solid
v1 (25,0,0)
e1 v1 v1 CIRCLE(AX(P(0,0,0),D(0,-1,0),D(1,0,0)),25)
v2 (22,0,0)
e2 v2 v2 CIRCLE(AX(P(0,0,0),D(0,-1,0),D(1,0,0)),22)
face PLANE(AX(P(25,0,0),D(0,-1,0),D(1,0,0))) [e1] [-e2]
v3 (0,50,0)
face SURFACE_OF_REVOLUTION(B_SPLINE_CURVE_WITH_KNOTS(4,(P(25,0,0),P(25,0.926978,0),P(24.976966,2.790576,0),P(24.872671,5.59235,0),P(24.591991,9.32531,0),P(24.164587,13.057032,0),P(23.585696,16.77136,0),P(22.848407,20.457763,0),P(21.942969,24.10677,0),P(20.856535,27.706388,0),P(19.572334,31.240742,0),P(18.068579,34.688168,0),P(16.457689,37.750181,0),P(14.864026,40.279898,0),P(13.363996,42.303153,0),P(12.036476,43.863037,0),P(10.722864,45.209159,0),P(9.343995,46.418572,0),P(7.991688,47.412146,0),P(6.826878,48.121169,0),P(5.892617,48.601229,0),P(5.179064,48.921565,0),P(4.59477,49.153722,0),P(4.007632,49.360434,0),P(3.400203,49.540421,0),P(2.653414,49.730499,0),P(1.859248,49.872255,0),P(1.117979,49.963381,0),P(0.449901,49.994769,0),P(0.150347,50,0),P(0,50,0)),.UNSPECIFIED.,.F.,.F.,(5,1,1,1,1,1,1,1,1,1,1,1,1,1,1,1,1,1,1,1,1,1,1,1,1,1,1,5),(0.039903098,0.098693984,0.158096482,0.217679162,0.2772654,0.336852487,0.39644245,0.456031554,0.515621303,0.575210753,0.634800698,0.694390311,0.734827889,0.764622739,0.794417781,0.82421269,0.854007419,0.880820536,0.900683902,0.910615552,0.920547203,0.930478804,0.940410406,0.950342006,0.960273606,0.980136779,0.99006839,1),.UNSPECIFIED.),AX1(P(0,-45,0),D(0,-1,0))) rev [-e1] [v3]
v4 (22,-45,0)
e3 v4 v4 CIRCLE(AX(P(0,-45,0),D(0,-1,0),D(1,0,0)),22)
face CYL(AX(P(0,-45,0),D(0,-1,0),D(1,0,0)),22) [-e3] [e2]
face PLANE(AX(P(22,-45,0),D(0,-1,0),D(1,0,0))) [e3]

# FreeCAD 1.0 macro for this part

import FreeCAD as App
import Part
import Sketcher
from FreeCAD import Vector
Q = App.Units.Quantity

doc = App.newDocument("Part")
body = doc.addObject("PartDesign::Body", "Body")

# Sketch on XY plane
sketch1 = body.newObject("Sketcher::SketchObject", "Sketch")
sketch1.AttachmentSupport = (doc.getObject("XY_Plane"), [""])
sketch1.MapMode = "FlatFace"
sketch1.addGeometry([
    Part.LineSegment(Vector(22, 0, 0), Vector(25, 0, 0)),  # 0
    Part.BSplineCurve([Vector(0, 50, 0), Vector(0.150347, 50, 0), Vector(0.449901, 49.994769, 0), Vector(1.117979, 49.963381, 0), Vector(1.859248, 49.872255, 0), Vector(2.653414, 49.730499, 0), Vector(3.400203, 49.540421, 0), Vector(4.007632, 49.360434, 0), Vector(4.59477, 49.153722, 0), Vector(5.179064, 48.921565, 0), Vector(5.892617, 48.601229, 0), Vector(6.826878, 48.121169, 0), Vector(7.991688, 47.412146, 0), Vector(9.343995, 46.418572, 0), Vector(10.722864, 45.209159, 0), Vector(12.036476, 43.863037, 0), Vector(13.363996, 42.303153, 0), Vector(14.864026, 40.279898, 0), Vector(16.457689, 37.750181, 0), Vector(18.068579, 34.688168, 0), Vector(19.572334, 31.240742, 0), Vector(20.856535, 27.706388, 0), Vector(21.942969, 24.10677, 0), Vector(22.848407, 20.457763, 0), Vector(23.585696, 16.77136, 0), Vector(24.164587, 13.057032, 0), Vector(24.591991, 9.32531, 0), Vector(24.872671, 5.59235, 0), Vector(24.976966, 2.790576, 0), Vector(25, 0.926978, 0), Vector(25, 0, 0)], [5, 1, 1, 1, 1, 1, 1, 1, 1, 1, 1, 1, 1, 1, 1, 1, 1, 1, 1, 1, 1, 1, 1, 1, 1, 1, 1, 5], [0.039903098, 0.049834709, 0.059766319, 0.079629492, 0.089561092, 0.099492693, 0.109424294, 0.119355895, 0.129287546, 0.139219196, 0.159082562, 0.185895679, 0.215690409, 0.245485318, 0.275280359, 0.305075209, 0.345512787, 0.4051024, 0.464692345, 0.524281796, 0.583871544, 0.643460648, 0.703050611, 0.762637698, 0.822223936, 0.881806617, 0.941209114, 1], False, 4, [1, 1, 1, 1, 1, 1, 1, 1, 1, 1, 1, 1, 1, 1, 1, 1, 1, 1, 1, 1, 1, 1, 1, 1, 1, 1, 1, 1, 1, 1, 1], False),  # 1
    Part.LineSegment(Vector(0, 50, 0), Vector(0, -45, 0)),  # 2
    Part.LineSegment(Vector(0, -45, 0), Vector(22, -45, 0)),  # 3
    Part.LineSegment(Vector(22, -45, 0), Vector(22, 0, 0)),  # 4
], False)
sketch1.addConstraint([
    Sketcher.Constraint("Block", 1),
    Sketcher.Constraint("Coincident", 0, 2, 1, 2),
    Sketcher.Constraint("Coincident", 1, 1, 2, 1),
    Sketcher.Constraint("Coincident", 2, 2, 3, 1),
    Sketcher.Constraint("Coincident", 3, 2, 4, 1),
    Sketcher.Constraint("Coincident", 4, 2, 0, 1),
    Sketcher.Constraint("Horizontal", 0),
    Sketcher.Constraint("Vertical", 2),
    Sketcher.Constraint("Horizontal", 3),
    Sketcher.Constraint("Vertical", 4),
    Sketcher.Constraint("DistanceX", 0, 1, 0, 2, Q("3 mm")),
    Sketcher.Constraint("DistanceY", 2, 2, 2, 1, Q("95 mm")),
])
revolution = body.newObject("PartDesign::Revolution", "Revolution")
revolution.Profile = sketch1
revolution.ReferenceAxis = (sketch1, ["V_Axis"])
revolution.Angle = 360

doc.recompute()
